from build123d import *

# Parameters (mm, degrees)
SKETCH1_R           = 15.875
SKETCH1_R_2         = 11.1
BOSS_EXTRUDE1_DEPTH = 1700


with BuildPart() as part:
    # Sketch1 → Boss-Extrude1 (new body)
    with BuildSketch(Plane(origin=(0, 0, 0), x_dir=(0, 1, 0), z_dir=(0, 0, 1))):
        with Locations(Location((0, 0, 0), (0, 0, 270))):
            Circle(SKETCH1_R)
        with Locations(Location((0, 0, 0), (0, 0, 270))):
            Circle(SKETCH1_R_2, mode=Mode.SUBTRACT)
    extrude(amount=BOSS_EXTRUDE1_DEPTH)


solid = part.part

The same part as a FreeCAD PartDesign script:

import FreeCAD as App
import Part
import Sketcher

V = App.Vector
Q = App.Units.Quantity

doc = App.newDocument("Part")
body = doc.addObject("PartDesign::Body", "Body")

sketch1 = body.newObject("Sketcher::SketchObject", "Sketch")
sketch1.AttachmentSupport = (doc.getObject("XY_Plane"), [""])
sketch1.MapMode = "FlatFace"
sketch1.addGeometry(Part.Circle(V(0, 0, 0), V(0, 0, 1), 16), False)
sketch1.addGeometry(Part.Circle(V(0, 0, 0), V(0, 0, 1), 11), False)
sketch1.addConstraint(Sketcher.Constraint("Coincident", 0, 3, -1, 1))
sketch1.addConstraint(Sketcher.Constraint("Coincident", 1, 3, -1, 1))
sketch1.addConstraint(Sketcher.Constraint("Diameter", 1, Q("22.2 mm")))
sketch1.addConstraint(Sketcher.Constraint("Diameter", 0, Q("31.75 mm")))
pad1 = body.newObject("PartDesign::Pad", "Pad")
pad1.Profile = sketch1
pad1.Length = 1700

doc.recompute()
